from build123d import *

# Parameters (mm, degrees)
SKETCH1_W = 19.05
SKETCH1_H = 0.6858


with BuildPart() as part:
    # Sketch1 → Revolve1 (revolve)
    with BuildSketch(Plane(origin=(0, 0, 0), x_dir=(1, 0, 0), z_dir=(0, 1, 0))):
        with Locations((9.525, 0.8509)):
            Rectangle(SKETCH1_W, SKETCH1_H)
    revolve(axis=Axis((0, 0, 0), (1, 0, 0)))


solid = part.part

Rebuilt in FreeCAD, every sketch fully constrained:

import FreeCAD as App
import Part
import Sketcher

V = App.Vector
Q = App.Units.Quantity

doc = App.newDocument("Part")
params = doc.addObject("Spreadsheet::Sheet", "Params")
for row, (alias, value) in enumerate([
    ("sketch1_width", "0.75 in"),
    ("sketch1_height", "0.027 in"),
    ("revolution_angle", "360 deg"),
], start=1):
    params.set(f"A{row}", alias)
    params.set(f"B{row}", "=" + value)
    params.setAlias(f"B{row}", alias)

body = doc.addObject("PartDesign::Body", "Body")

# Sketch on XZ plane
sketch1 = doc.addObject("Sketcher::SketchObject", "Sketch")
body.addObject(sketch1)
sketch1.AttachmentSupport = (doc.XZ_Plane, [""])
sketch1.MapMode = "FlatFace"
sketch1.addGeometry([
    Part.LineSegment(V(0, -1.1938, 0), V(0, -0.508, 0)),
    Part.LineSegment(V(0, -0.508, 0), V(19.05, -0.508, 0)),
    Part.LineSegment(V(19.05, -0.508, 0), V(19.05, -1.1938, 0)),
    Part.LineSegment(V(19.05, -1.1938, 0), V(0, -1.1938, 0)),
], False)
sketch1.addConstraint([
    Sketcher.Constraint("Coincident", 0, 2, 1, 1),
    Sketcher.Constraint("Coincident", 1, 2, 2, 1),
    Sketcher.Constraint("Coincident", 2, 2, 3, 1),
    Sketcher.Constraint("Coincident", 3, 2, 0, 1),
    Sketcher.Constraint("Vertical", 0),
    Sketcher.Constraint("Horizontal", 1),
    Sketcher.Constraint("Vertical", 2),
    Sketcher.Constraint("Horizontal", 3),
    Sketcher.Constraint("PointOnObject", 0, 2, -2),
    Sketcher.Constraint("DistanceX", 1, 1, 1, 2, Q("0.75 in")),
    Sketcher.Constraint("DistanceY", 0, 1, 0, 2, Q("0.027 in")),
    Sketcher.Constraint("DistanceY", 0, 2, -1, 1, Q("0.02 in")),
])
sketch1.setExpression("Constraints[9]", "Params.sketch1_width")
sketch1.setExpression("Constraints[10]", "Params.sketch1_height")
revolution = doc.addObject("PartDesign::Revolution", "Revolution")
body.addObject(revolution)
revolution.Profile = sketch1
revolution.ReferenceAxis = (sketch1, ["H_Axis"])
revolution.setExpression("Angle", "Params.revolution_angle")

doc.recompute()
